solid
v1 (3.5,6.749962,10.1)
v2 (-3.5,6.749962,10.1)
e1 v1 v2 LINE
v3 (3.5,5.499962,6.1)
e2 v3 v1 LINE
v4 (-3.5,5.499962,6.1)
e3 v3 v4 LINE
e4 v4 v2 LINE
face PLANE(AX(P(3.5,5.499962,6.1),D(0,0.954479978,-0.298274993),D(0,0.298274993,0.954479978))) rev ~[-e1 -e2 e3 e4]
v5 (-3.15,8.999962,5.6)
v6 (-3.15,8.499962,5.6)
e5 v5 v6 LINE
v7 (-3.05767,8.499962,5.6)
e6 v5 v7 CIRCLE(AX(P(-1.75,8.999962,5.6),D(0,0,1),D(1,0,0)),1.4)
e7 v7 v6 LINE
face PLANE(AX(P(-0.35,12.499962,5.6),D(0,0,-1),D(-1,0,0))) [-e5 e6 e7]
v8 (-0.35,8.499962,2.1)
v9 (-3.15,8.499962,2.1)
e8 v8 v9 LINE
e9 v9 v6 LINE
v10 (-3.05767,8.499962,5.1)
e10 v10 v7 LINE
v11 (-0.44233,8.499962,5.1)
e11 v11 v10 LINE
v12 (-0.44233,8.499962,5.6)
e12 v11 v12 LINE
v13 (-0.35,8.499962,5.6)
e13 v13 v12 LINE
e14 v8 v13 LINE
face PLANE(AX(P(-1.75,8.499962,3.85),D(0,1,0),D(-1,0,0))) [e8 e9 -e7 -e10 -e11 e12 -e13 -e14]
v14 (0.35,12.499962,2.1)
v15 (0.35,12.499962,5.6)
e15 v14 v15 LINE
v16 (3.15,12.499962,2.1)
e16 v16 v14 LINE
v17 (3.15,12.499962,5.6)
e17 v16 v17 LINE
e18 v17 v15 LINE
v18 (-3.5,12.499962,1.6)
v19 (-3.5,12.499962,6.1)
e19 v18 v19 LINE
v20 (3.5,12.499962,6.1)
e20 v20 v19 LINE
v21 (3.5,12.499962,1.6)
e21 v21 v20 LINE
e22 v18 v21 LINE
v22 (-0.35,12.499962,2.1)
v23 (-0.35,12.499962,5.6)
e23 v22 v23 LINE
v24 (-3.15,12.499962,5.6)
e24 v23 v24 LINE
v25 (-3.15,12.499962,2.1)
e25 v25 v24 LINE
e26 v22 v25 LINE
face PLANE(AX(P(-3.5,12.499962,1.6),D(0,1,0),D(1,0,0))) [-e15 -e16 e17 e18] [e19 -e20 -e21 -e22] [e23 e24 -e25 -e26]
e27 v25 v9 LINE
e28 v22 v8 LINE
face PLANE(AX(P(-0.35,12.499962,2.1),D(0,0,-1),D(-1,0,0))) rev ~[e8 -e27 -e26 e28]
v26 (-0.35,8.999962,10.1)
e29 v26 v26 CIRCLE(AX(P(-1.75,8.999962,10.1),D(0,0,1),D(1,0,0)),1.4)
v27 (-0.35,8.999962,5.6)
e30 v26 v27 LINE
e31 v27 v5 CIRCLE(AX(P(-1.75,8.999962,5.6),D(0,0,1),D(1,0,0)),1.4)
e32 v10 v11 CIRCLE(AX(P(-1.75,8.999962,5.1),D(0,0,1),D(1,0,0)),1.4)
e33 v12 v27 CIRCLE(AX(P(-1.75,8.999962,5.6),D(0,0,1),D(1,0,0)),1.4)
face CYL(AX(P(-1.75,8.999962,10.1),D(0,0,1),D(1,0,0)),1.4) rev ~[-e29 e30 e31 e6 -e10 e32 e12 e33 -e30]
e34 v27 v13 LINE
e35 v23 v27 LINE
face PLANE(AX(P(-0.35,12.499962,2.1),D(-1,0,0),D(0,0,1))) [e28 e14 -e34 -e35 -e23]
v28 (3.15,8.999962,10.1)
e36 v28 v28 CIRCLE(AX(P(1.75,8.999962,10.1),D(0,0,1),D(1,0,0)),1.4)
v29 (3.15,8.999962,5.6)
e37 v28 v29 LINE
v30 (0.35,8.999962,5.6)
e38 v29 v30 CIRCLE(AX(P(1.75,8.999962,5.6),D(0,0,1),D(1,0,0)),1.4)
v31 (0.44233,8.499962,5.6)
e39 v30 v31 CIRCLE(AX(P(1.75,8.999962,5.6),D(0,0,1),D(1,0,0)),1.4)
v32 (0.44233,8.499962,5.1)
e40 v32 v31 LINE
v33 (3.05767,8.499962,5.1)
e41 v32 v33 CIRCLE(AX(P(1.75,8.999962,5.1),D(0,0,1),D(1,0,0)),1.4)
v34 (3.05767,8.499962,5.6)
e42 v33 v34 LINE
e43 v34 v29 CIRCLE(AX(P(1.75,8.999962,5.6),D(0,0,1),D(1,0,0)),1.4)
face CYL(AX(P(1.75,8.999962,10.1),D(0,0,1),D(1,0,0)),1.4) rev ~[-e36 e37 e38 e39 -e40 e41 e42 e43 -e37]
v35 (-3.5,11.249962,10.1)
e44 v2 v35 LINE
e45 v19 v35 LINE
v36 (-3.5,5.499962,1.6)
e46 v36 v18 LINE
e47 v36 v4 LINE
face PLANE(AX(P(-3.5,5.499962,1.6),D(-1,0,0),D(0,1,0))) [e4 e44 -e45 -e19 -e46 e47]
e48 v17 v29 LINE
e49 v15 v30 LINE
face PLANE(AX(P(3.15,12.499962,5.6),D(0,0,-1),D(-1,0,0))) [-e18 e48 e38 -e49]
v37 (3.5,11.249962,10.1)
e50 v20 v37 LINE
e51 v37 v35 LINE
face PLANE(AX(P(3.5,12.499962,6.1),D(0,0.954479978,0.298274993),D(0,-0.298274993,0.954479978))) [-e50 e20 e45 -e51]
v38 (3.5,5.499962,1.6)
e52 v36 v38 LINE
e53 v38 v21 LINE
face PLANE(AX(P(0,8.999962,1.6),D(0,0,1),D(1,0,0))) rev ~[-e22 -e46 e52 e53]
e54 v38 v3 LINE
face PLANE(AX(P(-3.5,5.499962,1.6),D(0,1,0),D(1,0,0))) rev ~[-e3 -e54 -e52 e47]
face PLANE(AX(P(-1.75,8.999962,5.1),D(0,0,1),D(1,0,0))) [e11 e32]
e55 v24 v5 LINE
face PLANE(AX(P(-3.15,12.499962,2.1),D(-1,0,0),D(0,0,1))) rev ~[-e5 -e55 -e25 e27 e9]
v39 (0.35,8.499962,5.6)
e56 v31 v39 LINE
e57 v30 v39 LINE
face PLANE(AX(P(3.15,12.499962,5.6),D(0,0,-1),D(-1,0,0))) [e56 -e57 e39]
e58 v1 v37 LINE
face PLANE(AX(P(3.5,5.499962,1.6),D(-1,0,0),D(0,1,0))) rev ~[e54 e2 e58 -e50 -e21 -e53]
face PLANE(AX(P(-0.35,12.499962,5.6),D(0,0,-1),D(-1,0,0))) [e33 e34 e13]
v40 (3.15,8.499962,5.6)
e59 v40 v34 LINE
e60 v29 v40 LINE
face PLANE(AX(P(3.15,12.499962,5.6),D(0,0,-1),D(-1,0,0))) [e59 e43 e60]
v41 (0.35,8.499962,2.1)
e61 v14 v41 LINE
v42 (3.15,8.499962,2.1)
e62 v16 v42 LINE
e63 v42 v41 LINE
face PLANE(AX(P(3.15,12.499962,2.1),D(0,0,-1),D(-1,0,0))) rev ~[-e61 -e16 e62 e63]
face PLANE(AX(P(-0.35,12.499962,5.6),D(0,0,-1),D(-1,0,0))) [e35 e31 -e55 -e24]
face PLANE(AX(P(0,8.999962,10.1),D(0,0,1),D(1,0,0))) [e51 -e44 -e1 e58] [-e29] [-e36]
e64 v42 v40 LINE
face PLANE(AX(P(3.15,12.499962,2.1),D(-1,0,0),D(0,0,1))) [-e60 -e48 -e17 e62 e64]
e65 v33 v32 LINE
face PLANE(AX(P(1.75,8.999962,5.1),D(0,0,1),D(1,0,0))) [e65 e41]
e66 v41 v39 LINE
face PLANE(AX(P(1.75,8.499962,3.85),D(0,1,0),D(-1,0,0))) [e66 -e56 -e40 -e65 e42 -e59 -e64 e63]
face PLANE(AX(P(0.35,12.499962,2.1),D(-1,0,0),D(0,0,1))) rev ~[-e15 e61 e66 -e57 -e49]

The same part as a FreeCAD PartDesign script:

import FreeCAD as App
import Part
import Sketcher
Q = App.Units.Quantity


def add_polygon(sketch, points):
    """Adds a closed chain of lines whose ends are joined by coincident constraints."""
    first, n = sketch.GeometryCount, len(points)
    for a, b in zip(points, points[1:] + points[:1]):
        sketch.addGeometry(Part.LineSegment(App.Vector(*a, 0), App.Vector(*b, 0)), False)
    for i in range(n):
        sketch.addConstraint(Sketcher.Constraint("Coincident", first + i, 2, first + (i + 1) % n, 1))

doc = App.newDocument("Part")
body = doc.addObject("PartDesign::Body", "Body")

sketch1 = doc.addObject("Sketcher::SketchObject", "Sketch")
body.addObject(sketch1)
sketch1.AttachmentSupport = (doc.XY_Plane, [""])
sketch1.MapMode = "FlatFace"
sketch1.AttachmentOffset = App.Placement(App.Vector(0, 0, 1.6), App.Rotation())
add_polygon(sketch1, [(-4, 12), (-4, 5), (4, 5), (4, 12)])
sketch1.addConstraint(Sketcher.Constraint("Vertical", 0))
sketch1.addConstraint(Sketcher.Constraint("Horizontal", 1))
sketch1.addConstraint(Sketcher.Constraint("Vertical", 2))
sketch1.addConstraint(Sketcher.Constraint("Horizontal", 3))
sketch1.addConstraint(Sketcher.Constraint("Equal", 3, 0))
sketch1.addConstraint(Sketcher.Constraint("DistanceX", 1, 1, 1, 2, Q("7 mm")))
sketch1.addConstraint(Sketcher.Constraint("DistanceX", 0, 2, -1, 1, Q("3.5 mm")))
sketch1.addConstraint(Sketcher.Constraint("DistanceY", -1, 1, 0, 2, Q("5.499962 mm")))
pad1 = doc.addObject("PartDesign::Pad", "Pad")
body.addObject(pad1)
pad1.Profile = sketch1
pad1.Length = 8.5

sketch2 = doc.addObject("Sketcher::SketchObject", "Sketch001")
body.addObject(sketch2)
sketch2.AttachmentSupport = (doc.YZ_Plane, [""])
sketch2.MapMode = "FlatFace"
sketch2.AttachmentOffset = App.Placement(App.Vector(0, 0, 3.5), App.Rotation())
add_polygon(sketch2, [(5.5, 6.1), (6.7, 10.1), (5.5, 10.1)])
add_polygon(sketch2, [(12.5, 10.1), (11.2, 10.1), (12.5, 6.1)])
sketch2.addConstraint(Sketcher.Constraint("Horizontal", 1))
sketch2.addConstraint(Sketcher.Constraint("Vertical", 2))
sketch2.addConstraint(Sketcher.Constraint("Horizontal", 3))
sketch2.addConstraint(Sketcher.Constraint("Vertical", 5))
sketch2.addConstraint(Sketcher.Constraint("Horizontal", 1, 2, 3, 2))
sketch2.addConstraint(Sketcher.Constraint("Horizontal", 2, 2, 4, 2))
sketch2.addConstraint(Sketcher.Constraint("Equal", 1, 3))
sketch2.addConstraint(Sketcher.Constraint("DistanceY", 2, 2, 2, 1, Q("4 mm")))
sketch2.addConstraint(Sketcher.Constraint("DistanceX", 2, 2, 4, 2, Q("7 mm")))
sketch2.addConstraint(Sketcher.Constraint("DistanceX", 1, 2, 1, 1, Q("1.25 mm")))
sketch2.addConstraint(Sketcher.Constraint("DistanceY", -1, 1, 0, 2, Q("10.1 mm")))
sketch2.addConstraint(Sketcher.Constraint("DistanceX", -1, 1, 0, 2, Q("6.749962 mm")))
pocket1 = doc.addObject("PartDesign::Pocket", "Pocket")
body.addObject(pocket1)
pocket1.Profile = sketch2
pocket1.Length = 7

sketch3 = doc.addObject("Sketcher::SketchObject", "Sketch002")
body.addObject(sketch3)
sketch3.AttachmentSupport = (doc.XY_Plane, [""])
sketch3.MapMode = "FlatFace"
sketch3.AttachmentOffset = App.Placement(App.Vector(0, 0, 10.1), App.Rotation())
sketch3.addGeometry(Part.Circle(App.Vector(-1.8, 9, 0), App.Vector(0, 0, 1), 1.4), False)
sketch3.addGeometry(Part.Circle(App.Vector(1.8, 9, 0), App.Vector(0, 0, 1), 1.4), False)
sketch3.addConstraint(Sketcher.Constraint("Equal", 0, 1))
sketch3.addConstraint(Sketcher.Constraint("Symmetric", 0, 3, 1, 3, -2))
sketch3.addConstraint(Sketcher.Constraint("Diameter", 0, Q("2.8 mm")))
sketch3.addConstraint(Sketcher.Constraint("DistanceX", 0, 3, 1, 3, Q("3.5 mm")))
sketch3.addConstraint(Sketcher.Constraint("DistanceY", -1, 1, 0, 3, Q("8.999962 mm")))
pocket2 = doc.addObject("PartDesign::Pocket", "Pocket001")
body.addObject(pocket2)
pocket2.Profile = sketch3
pocket2.Length = 5

sketch4 = doc.addObject("Sketcher::SketchObject", "Sketch003")
body.addObject(sketch4)
sketch4.AttachmentSupport = (doc.XZ_Plane, [""])
sketch4.MapMode = "FlatFace"
sketch4.AttachmentOffset = App.Placement(App.Vector(0, 0, -12.499962), App.Rotation())
add_polygon(sketch4, [(3.1, 5.6), (3.1, 2.1), (0.3, 2.1), (0.3, 5.6)])
add_polygon(sketch4, [(-0.3, 5.6), (-0.3, 2.1), (-3.1, 2.1), (-3.1, 5.6)])
sketch4.addConstraint(Sketcher.Constraint("Vertical", 0))
sketch4.addConstraint(Sketcher.Constraint("Horizontal", 1))
sketch4.addConstraint(Sketcher.Constraint("Vertical", 2))
sketch4.addConstraint(Sketcher.Constraint("Horizontal", 3))
sketch4.addConstraint(Sketcher.Constraint("Vertical", 4))
sketch4.addConstraint(Sketcher.Constraint("Horizontal", 5))
sketch4.addConstraint(Sketcher.Constraint("Vertical", 6))
sketch4.addConstraint(Sketcher.Constraint("Horizontal", 7))
sketch4.addConstraint(Sketcher.Constraint("Symmetric", 1, 2, 4, 2, -2))
sketch4.addConstraint(Sketcher.Constraint("Symmetric", 3, 2, 6, 2, -2))
sketch4.addConstraint(Sketcher.Constraint("DistanceX", 1, 2, 1, 1, Q("2.8 mm")))
sketch4.addConstraint(Sketcher.Constraint("DistanceY", 0, 2, 0, 1, Q("3.5 mm")))
sketch4.addConstraint(Sketcher.Constraint("DistanceY", -1, 1, 0, 2, Q("2.1 mm")))
sketch4.addConstraint(Sketcher.Constraint("DistanceX", 4, 2, 1, 2, Q("0.7 mm")))
pocket3 = doc.addObject("PartDesign::Pocket", "Pocket002")
body.addObject(pocket3)
pocket3.Profile = sketch4
pocket3.Length = 4
pocket3.Reversed = True

doc.recompute()
